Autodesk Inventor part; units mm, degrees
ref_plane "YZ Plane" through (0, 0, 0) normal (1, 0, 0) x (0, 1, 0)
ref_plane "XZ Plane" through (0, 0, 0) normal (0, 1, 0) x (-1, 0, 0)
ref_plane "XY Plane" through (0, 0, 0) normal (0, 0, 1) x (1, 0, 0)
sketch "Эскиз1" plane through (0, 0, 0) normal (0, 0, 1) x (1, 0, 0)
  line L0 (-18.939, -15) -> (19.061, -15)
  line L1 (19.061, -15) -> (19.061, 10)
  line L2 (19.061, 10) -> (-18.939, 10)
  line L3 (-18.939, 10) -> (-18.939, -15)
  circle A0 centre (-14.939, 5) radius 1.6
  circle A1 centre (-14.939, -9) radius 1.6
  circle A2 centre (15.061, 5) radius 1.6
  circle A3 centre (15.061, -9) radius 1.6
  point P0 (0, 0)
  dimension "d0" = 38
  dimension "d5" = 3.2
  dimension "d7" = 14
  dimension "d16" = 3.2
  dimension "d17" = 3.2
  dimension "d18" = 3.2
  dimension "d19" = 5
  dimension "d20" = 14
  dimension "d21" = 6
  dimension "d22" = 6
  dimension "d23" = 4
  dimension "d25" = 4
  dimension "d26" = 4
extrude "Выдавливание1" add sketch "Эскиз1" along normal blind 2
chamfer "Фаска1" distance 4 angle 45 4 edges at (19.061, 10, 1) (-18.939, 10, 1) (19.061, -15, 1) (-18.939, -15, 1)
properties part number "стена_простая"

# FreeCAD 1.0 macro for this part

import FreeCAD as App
import Part
import Sketcher
Q = App.Units.Quantity


def edges_at(feature, points):
    """Names of the edges that pass closest to the given points."""
    edges = feature.Shape.Edges
    near = lambda p: min(range(len(edges)), key=lambda i: edges[i].distToShape(Part.Vertex(*p))[0])
    return sorted({f"Edge{near(p) + 1}" for p in points})


def add_polygon(sketch, points):
    """Adds a closed chain of lines whose ends are joined by coincident constraints."""
    first, n = sketch.GeometryCount, len(points)
    for a, b in zip(points, points[1:] + points[:1]):
        sketch.addGeometry(Part.LineSegment(App.Vector(*a, 0), App.Vector(*b, 0)), False)
    for i in range(n):
        sketch.addConstraint(Sketcher.Constraint("Coincident", first + i, 2, first + (i + 1) % n, 1))

doc = App.newDocument("Part")
params = doc.addObject("Spreadsheet::Sheet", "Params")
for row, (alias, value) in enumerate([
    ("sketch1_diameter", "3.2 mm"),
    ("sketch1_width", "38 mm"),
    ("pad1_length", "2 mm"),
    ("chamfer_size", "4 mm"),
], start=1):
    params.set(f"A{row}", alias)
    params.set(f"B{row}", "=" + value)
    params.setAlias(f"B{row}", alias)

body = doc.addObject("PartDesign::Body", "Body")

# Sketch on XY plane
sketch1 = body.newObject("Sketcher::SketchObject", "Sketch")
sketch1.AttachmentSupport = (doc.getObject("XY_Plane"), [""])
sketch1.MapMode = "FlatFace"
add_polygon(sketch1, [(-18.939, 10), (-18.939, -15), (19.061, -15), (19.061, 10)])  # lines 0-3
sketch1.addGeometry(Part.Circle(App.Vector(-14.939, -9, 0), App.Vector(0, 0, 1), 1.6), False)  # 4
sketch1.addGeometry(Part.Circle(App.Vector(15.061, -9, 0), App.Vector(0, 0, 1), 1.6), False)  # 5
sketch1.addGeometry(Part.Circle(App.Vector(-14.939, 5, 0), App.Vector(0, 0, 1), 1.6), False)  # 6
sketch1.addGeometry(Part.Circle(App.Vector(15.061, 5, 0), App.Vector(0, 0, 1), 1.6), False)  # 7
sketch1.addConstraint([
    Sketcher.Constraint("Vertical", 0),
    Sketcher.Constraint("Horizontal", 1),
    Sketcher.Constraint("Vertical", 2),
    Sketcher.Constraint("Horizontal", 3),
    Sketcher.Constraint("Equal", 4, 5),
    Sketcher.Constraint("Equal", 5, 6),
    Sketcher.Constraint("Equal", 6, 7),
    Sketcher.Constraint("Horizontal", 4, 3, 5, 3),
    Sketcher.Constraint("Horizontal", 6, 3, 7, 3),
    Sketcher.Constraint("Vertical", 4, 3, 6, 3),
    Sketcher.Constraint("Vertical", 5, 3, 7, 3),
    Sketcher.Constraint("Diameter", 4, Q("3.2 mm")),
    Sketcher.Constraint("DistanceX", 1, 1, 1, 2, Q("38 mm")),
    Sketcher.Constraint("DistanceY", -1, 1, 6, 3, Q("5 mm")),
    Sketcher.Constraint("DistanceY", 4, 3, 6, 3, Q("14 mm")),
    Sketcher.Constraint("DistanceX", 0, 2, 4, 3, Q("4 mm")),
    Sketcher.Constraint("DistanceY", 0, 2, 4, 3, Q("6 mm")),
    Sketcher.Constraint("DistanceX", 5, 3, 1, 2, Q("4 mm")),
    Sketcher.Constraint("DistanceY", 7, 3, 2, 2, Q("5 mm")),
    Sketcher.Constraint("DistanceX", 4, 3, -1, 1, Q("14.939 mm")),
])
sketch1.setExpression("Constraints[15]", "Params.sketch1_diameter")
sketch1.setExpression("Constraints[16]", "Params.sketch1_width")
pad1 = body.newObject("PartDesign::Pad", "Pad")
pad1.Profile = sketch1
pad1.setExpression("Length", "Params.pad1_length")
doc.recompute()

chamfer = body.newObject("PartDesign::Chamfer", "Chamfer")
chamfer.Base = (pad1, edges_at(pad1, [
    (19.061, 10, 1),
    (-18.939, 10, 1),
    (19.061, -15, 1),
    (-18.939, -15, 1),
]))
chamfer.setExpression("Size", "Params.chamfer_size")

doc.recompute()
